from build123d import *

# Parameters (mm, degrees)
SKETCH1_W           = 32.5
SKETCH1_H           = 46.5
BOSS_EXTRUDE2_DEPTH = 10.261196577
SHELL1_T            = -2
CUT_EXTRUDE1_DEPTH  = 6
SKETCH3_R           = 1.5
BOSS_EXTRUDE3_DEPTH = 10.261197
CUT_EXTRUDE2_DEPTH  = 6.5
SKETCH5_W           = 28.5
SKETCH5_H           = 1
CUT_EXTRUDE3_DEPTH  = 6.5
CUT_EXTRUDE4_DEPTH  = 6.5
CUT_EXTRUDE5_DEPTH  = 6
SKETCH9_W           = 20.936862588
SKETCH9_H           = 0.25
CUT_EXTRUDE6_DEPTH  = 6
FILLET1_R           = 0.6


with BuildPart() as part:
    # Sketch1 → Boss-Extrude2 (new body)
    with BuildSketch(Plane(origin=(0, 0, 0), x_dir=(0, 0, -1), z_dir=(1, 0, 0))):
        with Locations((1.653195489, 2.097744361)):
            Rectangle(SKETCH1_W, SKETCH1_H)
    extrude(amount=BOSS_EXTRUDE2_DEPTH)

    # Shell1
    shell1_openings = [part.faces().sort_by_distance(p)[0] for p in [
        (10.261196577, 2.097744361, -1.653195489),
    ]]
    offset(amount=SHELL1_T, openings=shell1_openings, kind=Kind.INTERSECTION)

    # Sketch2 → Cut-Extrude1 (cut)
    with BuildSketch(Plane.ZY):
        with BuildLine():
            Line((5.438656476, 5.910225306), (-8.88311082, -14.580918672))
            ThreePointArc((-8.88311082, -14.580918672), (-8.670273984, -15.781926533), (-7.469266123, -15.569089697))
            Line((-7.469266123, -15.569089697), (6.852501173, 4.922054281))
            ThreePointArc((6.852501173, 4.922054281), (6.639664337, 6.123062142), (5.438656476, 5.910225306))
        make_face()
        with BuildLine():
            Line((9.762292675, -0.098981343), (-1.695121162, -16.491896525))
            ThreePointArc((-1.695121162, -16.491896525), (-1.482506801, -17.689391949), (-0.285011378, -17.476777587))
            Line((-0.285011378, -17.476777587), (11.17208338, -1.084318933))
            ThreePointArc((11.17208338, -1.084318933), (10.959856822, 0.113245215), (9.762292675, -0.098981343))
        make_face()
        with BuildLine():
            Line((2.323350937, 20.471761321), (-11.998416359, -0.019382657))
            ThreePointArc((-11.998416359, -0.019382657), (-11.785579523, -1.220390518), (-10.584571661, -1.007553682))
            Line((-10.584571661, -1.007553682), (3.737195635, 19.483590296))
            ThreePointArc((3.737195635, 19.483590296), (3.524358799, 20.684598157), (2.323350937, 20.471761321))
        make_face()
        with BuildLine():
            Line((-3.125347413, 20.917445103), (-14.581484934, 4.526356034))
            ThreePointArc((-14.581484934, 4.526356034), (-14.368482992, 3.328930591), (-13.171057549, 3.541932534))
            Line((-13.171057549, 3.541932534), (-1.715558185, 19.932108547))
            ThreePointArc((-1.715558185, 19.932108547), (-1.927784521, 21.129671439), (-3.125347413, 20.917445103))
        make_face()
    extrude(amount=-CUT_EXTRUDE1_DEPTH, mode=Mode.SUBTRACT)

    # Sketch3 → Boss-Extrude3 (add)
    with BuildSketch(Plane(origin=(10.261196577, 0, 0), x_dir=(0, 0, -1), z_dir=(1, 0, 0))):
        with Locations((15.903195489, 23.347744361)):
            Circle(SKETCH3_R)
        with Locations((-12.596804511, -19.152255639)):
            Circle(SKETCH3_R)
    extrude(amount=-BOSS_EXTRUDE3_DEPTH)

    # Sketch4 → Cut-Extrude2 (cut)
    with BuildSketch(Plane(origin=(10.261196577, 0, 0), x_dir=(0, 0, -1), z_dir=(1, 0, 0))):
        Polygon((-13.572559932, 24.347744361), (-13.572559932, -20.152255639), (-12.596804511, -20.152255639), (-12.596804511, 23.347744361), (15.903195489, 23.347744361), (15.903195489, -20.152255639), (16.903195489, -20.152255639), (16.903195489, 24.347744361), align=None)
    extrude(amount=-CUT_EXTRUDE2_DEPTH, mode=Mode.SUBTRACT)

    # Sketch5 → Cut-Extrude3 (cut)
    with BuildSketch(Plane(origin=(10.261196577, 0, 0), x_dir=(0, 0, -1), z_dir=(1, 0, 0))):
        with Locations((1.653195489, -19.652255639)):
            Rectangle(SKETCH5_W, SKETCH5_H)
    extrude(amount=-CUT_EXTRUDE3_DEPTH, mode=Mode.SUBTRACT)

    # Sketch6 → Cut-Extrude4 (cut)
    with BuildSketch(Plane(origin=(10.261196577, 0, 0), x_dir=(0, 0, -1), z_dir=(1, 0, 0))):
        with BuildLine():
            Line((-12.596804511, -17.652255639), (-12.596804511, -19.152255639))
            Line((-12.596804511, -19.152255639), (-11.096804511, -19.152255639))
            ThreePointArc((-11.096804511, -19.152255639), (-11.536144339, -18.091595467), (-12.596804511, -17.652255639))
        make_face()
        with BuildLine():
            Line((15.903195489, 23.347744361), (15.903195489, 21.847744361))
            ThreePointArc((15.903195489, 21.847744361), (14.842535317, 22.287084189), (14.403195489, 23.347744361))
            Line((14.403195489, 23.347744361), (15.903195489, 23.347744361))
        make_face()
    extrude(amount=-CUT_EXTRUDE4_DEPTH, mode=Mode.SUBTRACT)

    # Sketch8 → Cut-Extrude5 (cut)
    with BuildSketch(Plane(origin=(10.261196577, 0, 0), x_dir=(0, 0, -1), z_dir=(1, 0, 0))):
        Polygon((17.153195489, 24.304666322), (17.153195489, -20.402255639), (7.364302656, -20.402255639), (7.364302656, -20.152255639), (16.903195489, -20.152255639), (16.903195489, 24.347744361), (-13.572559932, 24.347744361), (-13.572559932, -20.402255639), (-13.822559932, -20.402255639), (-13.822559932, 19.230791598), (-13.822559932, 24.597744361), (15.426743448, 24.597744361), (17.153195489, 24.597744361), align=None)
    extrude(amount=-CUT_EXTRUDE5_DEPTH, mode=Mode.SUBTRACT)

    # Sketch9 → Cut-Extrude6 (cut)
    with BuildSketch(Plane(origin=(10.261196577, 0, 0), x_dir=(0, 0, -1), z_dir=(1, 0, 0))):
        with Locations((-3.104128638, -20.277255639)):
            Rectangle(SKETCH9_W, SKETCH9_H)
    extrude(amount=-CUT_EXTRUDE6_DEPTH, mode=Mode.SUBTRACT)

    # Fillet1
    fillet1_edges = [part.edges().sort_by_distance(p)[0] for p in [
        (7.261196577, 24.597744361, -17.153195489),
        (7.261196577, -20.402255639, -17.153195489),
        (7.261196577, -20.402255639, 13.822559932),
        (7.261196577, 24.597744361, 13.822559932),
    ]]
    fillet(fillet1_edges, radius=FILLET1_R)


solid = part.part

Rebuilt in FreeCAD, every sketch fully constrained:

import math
import FreeCAD as App
import Part
import Sketcher
from FreeCAD import Vector
Q = App.Units.Quantity


def edges_at(feature, points):
    """Names of the edges that pass closest to the given points."""
    edges = feature.Shape.Edges
    near = lambda p: min(range(len(edges)), key=lambda i: edges[i].distToShape(Part.Vertex(*p))[0])
    return sorted({f"Edge{near(p) + 1}" for p in points})


def faces_at(feature, points):
    """Names of the faces that lie closest to the given points."""
    faces = feature.Shape.Faces
    near = lambda p: min(range(len(faces)), key=lambda i: faces[i].distToShape(Part.Vertex(*p))[0])
    return sorted({f"Face{near(p) + 1}" for p in points})


def add_polygon(sketch, points):
    """Adds a closed chain of lines whose ends are joined by coincident constraints."""
    first, n = sketch.GeometryCount, len(points)
    for a, b in zip(points, points[1:] + points[:1]):
        sketch.addGeometry(Part.LineSegment(App.Vector(*a, 0), App.Vector(*b, 0)), False)
    for i in range(n):
        sketch.addConstraint(Sketcher.Constraint("Coincident", first + i, 2, first + (i + 1) % n, 1))

doc = App.newDocument("Part")
body = doc.addObject("PartDesign::Body", "Body")

sketch1 = doc.addObject("Sketcher::SketchObject", "Sketch")
body.addObject(sketch1)
sketch1.AttachmentSupport = (doc.YZ_Plane, [""])
sketch1.MapMode = "FlatFace"
add_polygon(sketch1, [(25, 15), (-21, 15), (-21, -18), (25, -18)])
sketch1.addConstraint([
    Sketcher.Constraint("Horizontal", 0),
    Sketcher.Constraint("Vertical", 1),
    Sketcher.Constraint("Horizontal", 2),
    Sketcher.Constraint("Vertical", 3),
    Sketcher.Constraint("DistanceX", 0, 2, 0, 1, Q("46.5 mm")),
    Sketcher.Constraint("DistanceY", 1, 2, 1, 1, Q("32.5 mm")),
    Sketcher.Constraint("DistanceX", 0, 2, -1, 1, Q("21.152256 mm")),
    Sketcher.Constraint("DistanceY", -1, 1, 0, 2, Q("14.596805 mm")),
])
pad1 = doc.addObject("PartDesign::Pad", "Pad")
body.addObject(pad1)
pad1.Profile = sketch1
pad1.Length = 10.261197
doc.recompute()

thickness = doc.addObject("PartDesign::Thickness", "Thickness")
body.addObject(thickness)
thickness.Base = (pad1, faces_at(pad1, [(10.261, 2.098, -1.653)]))
thickness.Value = 2
thickness.Reversed = True
thickness.Join = "Intersection"

sketch2 = doc.addObject("Sketcher::SketchObject", "Sketch001")
body.addObject(sketch2)
sketch2.AttachmentSupport = (doc.YZ_Plane, [""])
sketch2.MapMode = "FlatFace"
sketch2.addGeometry([
    Part.LineSegment(Vector(5.910225, 5.438656, 0), Vector(-14.580919, -8.883111, 0)),
    Part.ArcOfCircle(Part.Circle(Vector(-15.075004, -8.176188, 0), Vector(0, 0, 1), 0.862473), math.radians(124.950651), math.radians(304.950651)),
    Part.LineSegment(Vector(-15.56909, -7.469266, 0), Vector(4.922054, 6.852501, 0)),
    Part.ArcOfCircle(Part.Circle(Vector(5.41614, 6.145579, 0), Vector(0, 0, 1), 0.862473), math.radians(-55.049349), math.radians(124.950651)),
    Part.LineSegment(Vector(-0.098981, 9.762293, 0), Vector(-16.491897, -1.695121, 0)),
    Part.ArcOfCircle(Part.Circle(Vector(-16.984337, -0.990066, 0), Vector(0, 0, 1), 0.86), math.radians(124.932097), math.radians(304.932098)),
    Part.LineSegment(Vector(-17.476778, -0.285011, 0), Vector(-1.084319, 11.172083, 0)),
    Part.ArcOfCircle(Part.Circle(Vector(-0.59165, 10.467188, 0), Vector(0, 0, 1), 0.86), math.radians(-55.049349), math.radians(124.950651)),
    Part.LineSegment(Vector(20.471761, 2.323351, 0), Vector(-0.019383, -11.998416, 0)),
    Part.ArcOfCircle(Part.Circle(Vector(-0.513468, -11.291494, 0), Vector(0, 0, 1), 0.862473), math.radians(124.950651), math.radians(304.950651)),
    Part.LineSegment(Vector(-1.007554, -10.584572, 0), Vector(19.48359, 3.737196, 0)),
    Part.ArcOfCircle(Part.Circle(Vector(19.977676, 3.030273, 0), Vector(0, 0, 1), 0.862473), math.radians(-55.049349), math.radians(124.950651)),
    Part.LineSegment(Vector(20.917445, -3.125347, 0), Vector(4.526356, -14.581485, 0)),
    Part.ArcOfCircle(Part.Circle(Vector(4.034144, -13.876271, 0), Vector(0, 0, 1), 0.859999), math.radians(124.913543), math.radians(304.913544)),
    Part.LineSegment(Vector(3.541933, -13.171058, 0), Vector(19.932109, -1.715558, 0)),
    Part.ArcOfCircle(Part.Circle(Vector(20.424777, -2.420453, 0), Vector(0, 0, 1), 0.859999), math.radians(-55.049349), math.radians(124.950651)),
], False)
sketch2.addConstraint([
    Sketcher.Constraint("Coincident", 0, 2, 1, 2),
    Sketcher.Constraint("Coincident", 1, 1, 2, 1),
    Sketcher.Constraint("Coincident", 2, 2, 3, 2),
    Sketcher.Constraint("Coincident", 3, 1, 0, 1),
    Sketcher.Constraint("Coincident", 4, 2, 5, 2),
    Sketcher.Constraint("Coincident", 5, 1, 6, 1),
    Sketcher.Constraint("Coincident", 6, 2, 7, 2),
    Sketcher.Constraint("Coincident", 7, 1, 4, 1),
    Sketcher.Constraint("Coincident", 8, 2, 9, 2),
    Sketcher.Constraint("Coincident", 9, 1, 10, 1),
    Sketcher.Constraint("Coincident", 10, 2, 11, 2),
    Sketcher.Constraint("Coincident", 11, 1, 8, 1),
    Sketcher.Constraint("Coincident", 12, 2, 13, 2),
    Sketcher.Constraint("Coincident", 13, 1, 14, 1),
    Sketcher.Constraint("Coincident", 14, 2, 15, 2),
    Sketcher.Constraint("Coincident", 15, 1, 12, 1),
    Sketcher.Constraint("Radius", 5, Q("0.86 mm")),
    Sketcher.Constraint("Radius", 7, Q("0.86 mm")),
    Sketcher.Constraint("Radius", 13, Q("0.859999 mm")),
    Sketcher.Constraint("Radius", 15, Q("0.859999 mm")),
    Sketcher.Constraint("Distance", 0, Q("25 mm")),
    Sketcher.Constraint("Distance", 2, Q("25 mm")),
    Sketcher.Constraint("Distance", 4, Q("20 mm")),
    Sketcher.Constraint("Distance", 8, Q("25 mm")),
    Sketcher.Constraint("Distance", 10, Q("25 mm")),
    Sketcher.Constraint("Radius", 1, Q("0.862473 mm")),
    Sketcher.Constraint("Radius", 3, Q("0.862473 mm")),
    Sketcher.Constraint("Radius", 9, Q("0.862473 mm")),
    Sketcher.Constraint("Radius", 11, Q("0.862473 mm")),
    Sketcher.Constraint("DistanceY", -1, 1, 2, 2, Q("6.852501 mm")),
    Sketcher.Constraint("DistanceX", 11, 3, 15, 3, Q("0.447101 mm")),
    Sketcher.Constraint("DistanceY", 0, 2, 7, 3, Q("19.350299 mm")),
    Sketcher.Constraint("DistanceY", 1, 1, 5, 3, Q("6.4792 mm")),
    Sketcher.Constraint("DistanceY", 0, 2, 5, 1, Q("8.598099 mm")),
    Sketcher.Constraint("DistanceY", 13, 3, 9, 1, Q("3.2917 mm")),
    Sketcher.Constraint("DistanceX", 9, 3, 13, 1, Q("4.055401 mm")),
    Sketcher.Constraint("DistanceY", 15, 1, 11, 1, Q("5.448698 mm")),
    Sketcher.Constraint("Distance", 14, Q("19.996658 mm")),
    Sketcher.Constraint("DistanceY", 1, 3, -1, 1, Q("8.176188 mm")),
    Sketcher.Constraint("DistanceX", -1, 1, 3, 3, Q("5.41614 mm")),
    Sketcher.Constraint("DistanceY", -1, 1, 3, 3, Q("6.145579 mm")),
    Sketcher.Constraint("DistanceX", 7, 3, -1, 1, Q("0.59165 mm")),
    Sketcher.Constraint("DistanceY", -1, 1, 7, 3, Q("10.467188 mm")),
    Sketcher.Constraint("DistanceX", 9, 3, -1, 1, Q("0.513468 mm")),
    Sketcher.Constraint("DistanceY", 13, 3, -1, 1, Q("13.876271 mm")),
    Sketcher.Constraint("DistanceX", 0, 2, -1, 1, Q("14.580919 mm")),
    Sketcher.Constraint("DistanceY", 4, 2, -1, 1, Q("1.695121 mm")),
    Sketcher.Constraint("DistanceX", 6, 2, -1, 1, Q("1.084319 mm")),
    Sketcher.Constraint("DistanceX", 7, 1, -1, 1, Q("0.098981 mm")),
    Sketcher.Constraint("DistanceX", -1, 1, 10, 2, Q("19.48359 mm")),
    Sketcher.Constraint("DistanceX", -1, 1, 11, 1, Q("20.471761 mm")),
    Sketcher.Constraint("DistanceY", -1, 1, 11, 1, Q("2.323351 mm")),
    Sketcher.Constraint("DistanceX", -1, 1, 14, 2, Q("19.932109 mm")),
    Sketcher.Constraint("DistanceY", 14, 2, -1, 1, Q("1.715558 mm")),
    Sketcher.Constraint("DistanceX", 1, 3, 11, 3, Q("35.05268 mm")),
    Sketcher.Constraint("DistanceX", 13, 3, 12, 2, Q("0.492212 mm")),
])
pocket1 = doc.addObject("PartDesign::Pocket", "Pocket")
body.addObject(pocket1)
pocket1.Profile = sketch2
pocket1.Length = 6
pocket1.Reversed = True

sketch3 = doc.addObject("Sketcher::SketchObject", "Sketch002")
body.addObject(sketch3)
sketch3.AttachmentSupport = (doc.YZ_Plane, [""])
sketch3.MapMode = "FlatFace"
sketch3.AttachmentOffset = App.Placement(Vector(0, 0, 10.261197), App.Rotation())
sketch3.addGeometry([
    Part.Circle(Vector(23.3, -15.9, 0), Vector(0, 0, 1), 1.5),
    Part.Circle(Vector(-19.2, 12.6, 0), Vector(0, 0, 1), 1.5),
], False)
sketch3.addConstraint([
    Sketcher.Constraint("Equal", 0, 1),
    Sketcher.Constraint("Diameter", 0, Q("3 mm")),
    Sketcher.Constraint("DistanceX", 1, 3, 0, 3, Q("42.5 mm")),
    Sketcher.Constraint("DistanceY", 0, 3, 1, 3, Q("28.5 mm")),
    Sketcher.Constraint("DistanceX", -1, 1, 0, 3, Q("23.347744 mm")),
    Sketcher.Constraint("DistanceY", 0, 3, -1, 1, Q("15.903195 mm")),
])
pad2 = doc.addObject("PartDesign::Pad", "Pad001")
body.addObject(pad2)
pad2.Profile = sketch3
pad2.Length = 10.261197
pad2.Reversed = True

sketch4 = doc.addObject("Sketcher::SketchObject", "Sketch003")
body.addObject(sketch4)
sketch4.AttachmentSupport = (doc.YZ_Plane, [""])
sketch4.MapMode = "FlatFace"
sketch4.AttachmentOffset = App.Placement(Vector(0, 0, 10.261197), App.Rotation())
add_polygon(sketch4, [(24.3, 13.6), (-20.2, 13.6), (-20.2, 12.6), (23.3, 12.6), (23.3, -15.9), (-20.2, -15.9), (-20.2, -16.9), (24.3, -16.9)])
sketch4.addConstraint([
    Sketcher.Constraint("Horizontal", 0),
    Sketcher.Constraint("Vertical", 1),
    Sketcher.Constraint("Horizontal", 2),
    Sketcher.Constraint("Vertical", 3),
    Sketcher.Constraint("Horizontal", 4),
    Sketcher.Constraint("Vertical", 5),
    Sketcher.Constraint("Horizontal", 6),
    Sketcher.Constraint("Vertical", 7),
    Sketcher.Constraint("Vertical", 1, 2, 4, 2),
    Sketcher.Constraint("DistanceY", 5, 2, 5, 1, Q("1 mm")),
    Sketcher.Constraint("DistanceX", 0, 2, 0, 1, Q("44.5 mm")),
    Sketcher.Constraint("DistanceX", 2, 1, 2, 2, Q("43.5 mm")),
    Sketcher.Constraint("DistanceY", 3, 2, 3, 1, Q("28.5 mm")),
    Sketcher.Constraint("DistanceY", 1, 2, 1, 1, Q("0.975755 mm")),
    Sketcher.Constraint("DistanceY", -1, 1, 0, 2, Q("13.57256 mm")),
    Sketcher.Constraint("DistanceX", 0, 2, -1, 1, Q("20.152256 mm")),
])
pocket2 = doc.addObject("PartDesign::Pocket", "Pocket001")
body.addObject(pocket2)
pocket2.Profile = sketch4
pocket2.Length = 6.5

sketch5 = doc.addObject("Sketcher::SketchObject", "Sketch004")
body.addObject(sketch5)
sketch5.AttachmentSupport = (doc.YZ_Plane, [""])
sketch5.MapMode = "FlatFace"
sketch5.AttachmentOffset = App.Placement(Vector(0, 0, 10.261197), App.Rotation())
add_polygon(sketch5, [(-19.2, 12.6), (-20.2, 12.6), (-20.2, -15.9), (-19.2, -15.9)])
sketch5.addConstraint([
    Sketcher.Constraint("Horizontal", 0),
    Sketcher.Constraint("Vertical", 1),
    Sketcher.Constraint("Horizontal", 2),
    Sketcher.Constraint("Vertical", 3),
    Sketcher.Constraint("DistanceX", 0, 2, 0, 1, Q("1 mm")),
    Sketcher.Constraint("DistanceY", 1, 2, 1, 1, Q("28.5 mm")),
    Sketcher.Constraint("DistanceX", 0, 2, -1, 1, Q("20.152256 mm")),
    Sketcher.Constraint("DistanceY", -1, 1, 0, 2, Q("12.596805 mm")),
])
pocket3 = doc.addObject("PartDesign::Pocket", "Pocket002")
body.addObject(pocket3)
pocket3.Profile = sketch5
pocket3.Length = 6.5

sketch6 = doc.addObject("Sketcher::SketchObject", "Sketch005")
body.addObject(sketch6)
sketch6.AttachmentSupport = (doc.YZ_Plane, [""])
sketch6.MapMode = "FlatFace"
sketch6.AttachmentOffset = App.Placement(Vector(0, 0, 10.261197), App.Rotation())
sketch6.addGeometry([
    Part.LineSegment(Vector(-17.7, 12.6, 0), Vector(-19.2, 12.6, 0)),
    Part.LineSegment(Vector(-19.2, 12.6, 0), Vector(-19.2, 11.1, 0)),
    Part.ArcOfCircle(Part.Circle(Vector(-19.2, 12.6, 0), Vector(0, 0, 1), 1.5), math.radians(-90), math.radians(0)),
    Part.LineSegment(Vector(21.8, -15.9, 0), Vector(23.3, -15.9, 0)),
    Part.LineSegment(Vector(23.3, -15.9, 0), Vector(23.3, -14.4, 0)),
    Part.ArcOfCircle(Part.Circle(Vector(23.3, -15.9, 0), Vector(0, 0, 1), 1.5), math.radians(90), math.radians(180)),
], False)
sketch6.addConstraint([
    Sketcher.Constraint("Coincident", 0, 2, 1, 1),
    Sketcher.Constraint("Coincident", 1, 2, 2, 1),
    Sketcher.Constraint("Coincident", 2, 2, 0, 1),
    Sketcher.Constraint("Coincident", 3, 2, 4, 1),
    Sketcher.Constraint("Coincident", 4, 2, 5, 1),
    Sketcher.Constraint("Coincident", 5, 2, 3, 1),
    Sketcher.Constraint("Horizontal", 0),
    Sketcher.Constraint("Vertical", 1),
    Sketcher.Constraint("Horizontal", 3),
    Sketcher.Constraint("Vertical", 4),
    Sketcher.Constraint("Coincident", 0, 2, 2, 3),
    Sketcher.Constraint("Coincident", 3, 2, 5, 3),
    Sketcher.Constraint("Equal", 2, 5),
    Sketcher.Constraint("Radius", 2, Q("1.5 mm")),
    Sketcher.Constraint("DistanceY", 5, 3, 1, 2, Q("27 mm")),
    Sketcher.Constraint("DistanceX", 2, 2, 5, 3, Q("41 mm")),
    Sketcher.Constraint("DistanceX", 2, 3, -1, 1, Q("19.152256 mm")),
    Sketcher.Constraint("DistanceY", -1, 1, 2, 3, Q("12.596805 mm")),
])
pocket4 = doc.addObject("PartDesign::Pocket", "Pocket003")
body.addObject(pocket4)
pocket4.Profile = sketch6
pocket4.Length = 6.5

sketch7 = doc.addObject("Sketcher::SketchObject", "Sketch006")
body.addObject(sketch7)
sketch7.AttachmentSupport = (doc.YZ_Plane, [""])
sketch7.MapMode = "FlatFace"
sketch7.AttachmentOffset = App.Placement(Vector(0, 0, 10.261197), App.Rotation())
add_polygon(sketch7, [(-20.4, -17.15), (24.6, -17.15), (24.6, 13.82), (-20.4, 13.82), (-20.4, 13.57), (24.35, 13.57), (24.35, -16.9), (-20.15, -16.9), (-20.15, -7.36), (-20.4, -7.36)])
sketch7.addConstraint([
    Sketcher.Constraint("Horizontal", 0),
    Sketcher.Constraint("Vertical", 1),
    Sketcher.Constraint("Horizontal", 2),
    Sketcher.Constraint("Vertical", 3),
    Sketcher.Constraint("Horizontal", 4),
    Sketcher.Constraint("Vertical", 5),
    Sketcher.Constraint("Horizontal", 6),
    Sketcher.Constraint("Vertical", 7),
    Sketcher.Constraint("Horizontal", 8),
    Sketcher.Constraint("Vertical", 9),
    Sketcher.Constraint("Vertical", 3, 2, 8, 2),
    Sketcher.Constraint("Equal", 8, 3),
    Sketcher.Constraint("DistanceX", 0, 1, 0, 2, Q("45 mm")),
    Sketcher.Constraint("DistanceX", 6, 2, 6, 1, Q("44.5 mm")),
    Sketcher.Constraint("DistanceX", 4, 1, 4, 2, Q("44.75 mm")),
    Sketcher.Constraint("DistanceY", 0, 2, 5, 2, Q("0.25 mm")),
    Sketcher.Constraint("DistanceY", 1, 1, 1, 2, Q("30.975755 mm")),
    Sketcher.Constraint("DistanceY", 7, 1, 7, 2, Q("9.538893 mm")),
    Sketcher.Constraint("DistanceY", -1, 1, 1, 2, Q("13.82256 mm")),
    Sketcher.Constraint("DistanceX", -1, 1, 0, 2, Q("24.597744 mm")),
])
pocket5 = doc.addObject("PartDesign::Pocket", "Pocket004")
body.addObject(pocket5)
pocket5.Profile = sketch7
pocket5.Length = 6

sketch8 = doc.addObject("Sketcher::SketchObject", "Sketch007")
body.addObject(sketch8)
sketch8.AttachmentSupport = (doc.YZ_Plane, [""])
sketch8.MapMode = "FlatFace"
sketch8.AttachmentOffset = App.Placement(Vector(0, 0, 10.261197), App.Rotation())
add_polygon(sketch8, [(-20.15, 13.57), (-20.4, 13.57), (-20.4, -7.36), (-20.15, -7.36)])
sketch8.addConstraint([
    Sketcher.Constraint("Horizontal", 0),
    Sketcher.Constraint("Vertical", 1),
    Sketcher.Constraint("Horizontal", 2),
    Sketcher.Constraint("Vertical", 3),
    Sketcher.Constraint("DistanceX", 0, 2, 0, 1, Q("0.25 mm")),
    Sketcher.Constraint("DistanceY", 1, 2, 1, 1, Q("20.936863 mm")),
    Sketcher.Constraint("DistanceY", -1, 1, 0, 2, Q("13.57256 mm")),
    Sketcher.Constraint("DistanceX", 0, 2, -1, 1, Q("20.402256 mm")),
])
pocket6 = doc.addObject("PartDesign::Pocket", "Pocket005")
body.addObject(pocket6)
pocket6.Profile = sketch8
pocket6.Length = 6
doc.recompute()

fillet = doc.addObject("PartDesign::Fillet", "Fillet")
body.addObject(fillet)
fillet.Base = (pocket6, edges_at(pocket6, [
    (7.261, 24.598, -17.153),
    (7.261, -20.402, -17.153),
    (7.261, -20.402, 13.823),
    (7.261, 24.598, 13.823),
]))
fillet.Radius = 0.6

doc.recompute()
